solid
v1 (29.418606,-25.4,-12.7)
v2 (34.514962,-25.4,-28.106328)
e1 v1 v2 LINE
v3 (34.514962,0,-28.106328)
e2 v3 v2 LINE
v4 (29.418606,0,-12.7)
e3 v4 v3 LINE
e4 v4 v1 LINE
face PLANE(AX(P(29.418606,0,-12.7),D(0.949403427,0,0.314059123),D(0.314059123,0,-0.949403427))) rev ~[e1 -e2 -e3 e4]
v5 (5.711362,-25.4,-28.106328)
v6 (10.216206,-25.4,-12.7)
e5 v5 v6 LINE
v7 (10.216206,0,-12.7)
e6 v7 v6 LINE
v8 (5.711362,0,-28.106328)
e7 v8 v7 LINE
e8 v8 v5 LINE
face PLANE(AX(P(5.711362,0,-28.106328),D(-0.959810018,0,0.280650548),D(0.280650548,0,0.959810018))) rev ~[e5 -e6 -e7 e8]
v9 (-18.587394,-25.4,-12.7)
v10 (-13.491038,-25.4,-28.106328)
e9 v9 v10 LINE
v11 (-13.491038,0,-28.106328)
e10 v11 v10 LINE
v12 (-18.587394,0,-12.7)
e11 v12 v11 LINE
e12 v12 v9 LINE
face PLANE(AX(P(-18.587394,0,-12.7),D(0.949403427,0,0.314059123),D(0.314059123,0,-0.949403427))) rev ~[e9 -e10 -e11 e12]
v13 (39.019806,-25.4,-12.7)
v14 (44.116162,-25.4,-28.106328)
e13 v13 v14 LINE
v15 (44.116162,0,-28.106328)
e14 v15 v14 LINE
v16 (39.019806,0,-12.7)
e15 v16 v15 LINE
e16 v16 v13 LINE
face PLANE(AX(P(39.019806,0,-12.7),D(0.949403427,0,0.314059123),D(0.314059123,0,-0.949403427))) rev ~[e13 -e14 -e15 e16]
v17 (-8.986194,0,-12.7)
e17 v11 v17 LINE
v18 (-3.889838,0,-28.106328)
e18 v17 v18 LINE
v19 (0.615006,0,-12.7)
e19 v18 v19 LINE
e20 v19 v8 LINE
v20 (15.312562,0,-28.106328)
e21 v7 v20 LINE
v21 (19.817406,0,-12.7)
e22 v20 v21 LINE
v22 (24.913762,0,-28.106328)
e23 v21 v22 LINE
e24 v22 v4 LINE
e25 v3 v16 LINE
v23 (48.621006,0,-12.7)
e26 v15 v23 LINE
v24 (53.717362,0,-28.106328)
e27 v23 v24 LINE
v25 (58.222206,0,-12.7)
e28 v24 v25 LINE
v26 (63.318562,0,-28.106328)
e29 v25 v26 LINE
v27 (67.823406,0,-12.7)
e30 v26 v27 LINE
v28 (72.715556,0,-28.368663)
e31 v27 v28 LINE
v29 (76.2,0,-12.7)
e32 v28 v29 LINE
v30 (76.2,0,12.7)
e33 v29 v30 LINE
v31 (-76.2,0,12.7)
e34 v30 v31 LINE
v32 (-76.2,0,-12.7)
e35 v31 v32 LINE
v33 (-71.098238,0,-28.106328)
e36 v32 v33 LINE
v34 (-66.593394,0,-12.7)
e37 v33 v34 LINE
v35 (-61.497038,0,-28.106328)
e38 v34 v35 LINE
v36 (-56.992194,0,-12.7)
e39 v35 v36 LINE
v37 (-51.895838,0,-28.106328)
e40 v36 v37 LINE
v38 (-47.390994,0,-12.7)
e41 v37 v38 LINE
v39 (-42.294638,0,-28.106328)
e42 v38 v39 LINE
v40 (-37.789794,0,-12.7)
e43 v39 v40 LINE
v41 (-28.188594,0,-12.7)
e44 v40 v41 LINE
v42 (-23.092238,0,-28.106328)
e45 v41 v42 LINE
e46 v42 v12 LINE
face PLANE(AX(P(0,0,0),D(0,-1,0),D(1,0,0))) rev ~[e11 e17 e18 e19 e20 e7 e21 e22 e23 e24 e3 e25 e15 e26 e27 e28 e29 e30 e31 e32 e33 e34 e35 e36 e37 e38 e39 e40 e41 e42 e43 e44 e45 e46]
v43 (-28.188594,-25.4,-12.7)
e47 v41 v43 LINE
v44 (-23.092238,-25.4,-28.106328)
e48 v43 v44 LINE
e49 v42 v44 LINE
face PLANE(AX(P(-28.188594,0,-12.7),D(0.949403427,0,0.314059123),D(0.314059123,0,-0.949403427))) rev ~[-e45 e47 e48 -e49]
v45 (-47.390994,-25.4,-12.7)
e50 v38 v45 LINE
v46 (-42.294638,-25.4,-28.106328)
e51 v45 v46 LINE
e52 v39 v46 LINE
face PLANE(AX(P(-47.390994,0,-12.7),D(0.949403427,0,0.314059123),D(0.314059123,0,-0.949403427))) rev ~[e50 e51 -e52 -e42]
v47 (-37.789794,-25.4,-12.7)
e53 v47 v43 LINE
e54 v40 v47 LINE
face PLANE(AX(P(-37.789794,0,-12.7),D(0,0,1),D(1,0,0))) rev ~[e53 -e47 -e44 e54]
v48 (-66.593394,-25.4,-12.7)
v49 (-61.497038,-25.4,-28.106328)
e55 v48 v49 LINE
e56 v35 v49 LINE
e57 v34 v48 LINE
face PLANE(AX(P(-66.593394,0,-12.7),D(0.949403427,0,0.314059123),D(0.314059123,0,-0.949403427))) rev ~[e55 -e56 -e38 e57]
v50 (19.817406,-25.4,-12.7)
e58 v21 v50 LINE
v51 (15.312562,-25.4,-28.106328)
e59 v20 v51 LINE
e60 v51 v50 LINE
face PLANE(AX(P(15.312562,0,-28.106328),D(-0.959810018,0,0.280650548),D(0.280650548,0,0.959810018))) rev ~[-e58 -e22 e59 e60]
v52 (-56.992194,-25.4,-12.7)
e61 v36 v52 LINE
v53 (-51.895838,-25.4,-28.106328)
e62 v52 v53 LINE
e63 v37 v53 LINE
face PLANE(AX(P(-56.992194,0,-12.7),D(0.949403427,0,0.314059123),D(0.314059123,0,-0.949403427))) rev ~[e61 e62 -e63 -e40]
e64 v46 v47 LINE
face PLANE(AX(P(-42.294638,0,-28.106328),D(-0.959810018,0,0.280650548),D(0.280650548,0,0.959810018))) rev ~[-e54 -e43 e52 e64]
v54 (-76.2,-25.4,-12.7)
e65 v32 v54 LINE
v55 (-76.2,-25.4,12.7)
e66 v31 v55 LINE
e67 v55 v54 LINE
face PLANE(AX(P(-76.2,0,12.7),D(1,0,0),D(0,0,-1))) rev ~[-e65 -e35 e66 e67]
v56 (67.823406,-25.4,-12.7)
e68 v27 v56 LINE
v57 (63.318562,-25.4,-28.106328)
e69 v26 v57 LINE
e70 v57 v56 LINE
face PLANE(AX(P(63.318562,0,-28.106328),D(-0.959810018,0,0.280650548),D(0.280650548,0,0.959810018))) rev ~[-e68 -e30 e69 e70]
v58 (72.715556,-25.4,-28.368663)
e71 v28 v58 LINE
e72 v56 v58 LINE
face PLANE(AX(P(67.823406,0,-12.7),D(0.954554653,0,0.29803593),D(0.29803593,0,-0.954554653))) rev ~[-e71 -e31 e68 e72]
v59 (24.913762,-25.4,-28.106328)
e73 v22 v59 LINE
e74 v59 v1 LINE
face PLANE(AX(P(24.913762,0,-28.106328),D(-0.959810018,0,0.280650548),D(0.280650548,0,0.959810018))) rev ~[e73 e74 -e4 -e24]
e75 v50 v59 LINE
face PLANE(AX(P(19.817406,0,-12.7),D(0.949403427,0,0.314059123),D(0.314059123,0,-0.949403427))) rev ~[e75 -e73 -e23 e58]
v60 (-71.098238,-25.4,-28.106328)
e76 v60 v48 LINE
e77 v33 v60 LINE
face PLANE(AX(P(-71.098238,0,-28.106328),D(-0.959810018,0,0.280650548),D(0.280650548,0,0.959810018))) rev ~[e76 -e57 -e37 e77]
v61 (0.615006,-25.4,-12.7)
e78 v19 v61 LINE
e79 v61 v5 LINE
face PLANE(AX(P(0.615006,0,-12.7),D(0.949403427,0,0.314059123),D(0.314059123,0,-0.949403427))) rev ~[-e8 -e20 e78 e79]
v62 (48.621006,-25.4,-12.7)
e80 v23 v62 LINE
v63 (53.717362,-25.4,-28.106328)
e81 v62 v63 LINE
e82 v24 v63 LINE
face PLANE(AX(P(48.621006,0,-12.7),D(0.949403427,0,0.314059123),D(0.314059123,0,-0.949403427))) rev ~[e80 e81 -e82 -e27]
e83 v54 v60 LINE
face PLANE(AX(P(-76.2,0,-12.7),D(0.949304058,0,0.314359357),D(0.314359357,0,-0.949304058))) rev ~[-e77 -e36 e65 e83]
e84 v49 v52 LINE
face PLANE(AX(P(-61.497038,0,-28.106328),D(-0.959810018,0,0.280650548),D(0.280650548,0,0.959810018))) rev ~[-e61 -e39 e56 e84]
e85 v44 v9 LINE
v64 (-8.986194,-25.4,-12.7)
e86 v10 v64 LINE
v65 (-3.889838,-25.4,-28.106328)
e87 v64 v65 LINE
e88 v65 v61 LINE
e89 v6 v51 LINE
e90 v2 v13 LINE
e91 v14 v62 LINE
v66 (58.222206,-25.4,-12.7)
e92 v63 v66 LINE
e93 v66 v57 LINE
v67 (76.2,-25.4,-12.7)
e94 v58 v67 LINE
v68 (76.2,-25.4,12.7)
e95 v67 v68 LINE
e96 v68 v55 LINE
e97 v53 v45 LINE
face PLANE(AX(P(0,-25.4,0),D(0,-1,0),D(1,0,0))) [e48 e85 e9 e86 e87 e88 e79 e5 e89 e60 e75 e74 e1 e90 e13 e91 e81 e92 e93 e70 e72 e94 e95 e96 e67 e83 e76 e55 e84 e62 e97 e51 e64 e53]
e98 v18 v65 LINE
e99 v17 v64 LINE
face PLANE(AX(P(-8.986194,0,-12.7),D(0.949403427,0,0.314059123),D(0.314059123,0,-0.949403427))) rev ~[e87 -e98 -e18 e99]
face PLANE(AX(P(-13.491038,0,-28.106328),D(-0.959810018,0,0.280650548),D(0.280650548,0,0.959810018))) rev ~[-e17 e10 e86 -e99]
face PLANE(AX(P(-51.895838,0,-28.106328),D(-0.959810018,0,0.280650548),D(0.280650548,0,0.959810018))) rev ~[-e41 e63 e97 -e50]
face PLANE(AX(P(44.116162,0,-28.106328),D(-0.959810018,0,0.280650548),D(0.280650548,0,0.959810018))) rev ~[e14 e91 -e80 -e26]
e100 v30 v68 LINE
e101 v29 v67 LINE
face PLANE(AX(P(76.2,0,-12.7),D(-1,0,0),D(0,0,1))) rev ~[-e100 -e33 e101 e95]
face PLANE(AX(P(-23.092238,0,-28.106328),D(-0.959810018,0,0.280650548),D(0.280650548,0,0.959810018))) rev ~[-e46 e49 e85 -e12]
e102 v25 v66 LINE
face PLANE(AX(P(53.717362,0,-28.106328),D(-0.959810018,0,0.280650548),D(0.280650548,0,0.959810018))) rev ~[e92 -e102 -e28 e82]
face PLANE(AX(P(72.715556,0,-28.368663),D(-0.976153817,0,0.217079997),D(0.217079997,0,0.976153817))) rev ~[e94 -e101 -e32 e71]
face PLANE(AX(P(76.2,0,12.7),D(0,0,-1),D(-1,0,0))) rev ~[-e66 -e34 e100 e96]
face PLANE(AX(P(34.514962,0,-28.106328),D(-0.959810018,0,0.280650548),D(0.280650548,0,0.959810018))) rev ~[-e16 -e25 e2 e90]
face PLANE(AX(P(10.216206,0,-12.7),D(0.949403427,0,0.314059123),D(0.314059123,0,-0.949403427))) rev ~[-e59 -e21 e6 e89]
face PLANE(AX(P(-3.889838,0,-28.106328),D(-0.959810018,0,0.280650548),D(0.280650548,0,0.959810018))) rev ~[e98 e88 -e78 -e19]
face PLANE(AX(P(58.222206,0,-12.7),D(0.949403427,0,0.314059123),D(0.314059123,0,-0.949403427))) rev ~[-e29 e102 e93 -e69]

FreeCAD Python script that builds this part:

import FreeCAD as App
import Part
import Sketcher
from FreeCAD import Vector
Q = App.Units.Quantity

doc = App.newDocument("Part")
params = doc.addObject("Spreadsheet::Sheet", "Params")
for row, (alias, value) in enumerate([
    ("sketch1_width", "6 in"),
    ("sketch1_height", "1 in"),
    ("sketch1_width2", "0.378 in"),
    ("pad1_length", "1 in"),
], start=1):
    params.set(f"A{row}", alias)
    params.set(f"B{row}", "=" + value)
    params.setAlias(f"B{row}", alias)

body = doc.addObject("PartDesign::Body", "Body")

# Sketch on XZ plane
sketch1 = doc.addObject("Sketcher::SketchObject", "Sketch")
body.addObject(sketch1)
sketch1.AttachmentSupport = (doc.XZ_Plane, [""])
sketch1.MapMode = "FlatFace"
sketch1.addGeometry([
    Part.LineSegment(Vector(76, -13, 0), Vector(76, 13, 0)),  # 0
    Part.LineSegment(Vector(76, 13, 0), Vector(-76, 13, 0)),  # 1
    Part.LineSegment(Vector(-76, 13, 0), Vector(-76, -13, 0)),  # 2
    Part.LineSegment(Vector(-76, -13, 0), Vector(-71, -28, 0)),  # 3
    Part.LineSegment(Vector(-71, -28, 0), Vector(-67, -13, 0)),  # 4
    Part.LineSegment(Vector(-67, -13, 0), Vector(-61, -28, 0)),  # 5
    Part.LineSegment(Vector(-61, -28, 0), Vector(-57, -13, 0)),  # 6
    Part.LineSegment(Vector(-57, -13, 0), Vector(-52, -28, 0)),  # 7
    Part.LineSegment(Vector(-52, -28, 0), Vector(-47, -13, 0)),  # 8
    Part.LineSegment(Vector(-47, -13, 0), Vector(-42, -28, 0)),  # 9
    Part.LineSegment(Vector(-42, -28, 0), Vector(-38, -13, 0)),  # 10
    Part.LineSegment(Vector(-38, -13, 0), Vector(-28, -13, 0)),  # 11
    Part.LineSegment(Vector(-28, -13, 0), Vector(-23, -28, 0)),  # 12
    Part.LineSegment(Vector(-23, -28, 0), Vector(-19, -13, 0)),  # 13
    Part.LineSegment(Vector(-19, -13, 0), Vector(-13, -28, 0)),  # 14
    Part.LineSegment(Vector(-13, -28, 0), Vector(-9, -13, 0)),  # 15
    Part.LineSegment(Vector(-9, -13, 0), Vector(-4, -28, 0)),  # 16
    Part.LineSegment(Vector(-4, -28, 0), Vector(1, -13, 0)),  # 17
    Part.LineSegment(Vector(1, -13, 0), Vector(6, -28, 0)),  # 18
    Part.LineSegment(Vector(6, -28, 0), Vector(10, -13, 0)),  # 19
    Part.LineSegment(Vector(10, -13, 0), Vector(15, -28, 0)),  # 20
    Part.LineSegment(Vector(15, -28, 0), Vector(20, -13, 0)),  # 21
    Part.LineSegment(Vector(20, -13, 0), Vector(25, -28, 0)),  # 22
    Part.LineSegment(Vector(25, -28, 0), Vector(29, -13, 0)),  # 23
    Part.LineSegment(Vector(29, -13, 0), Vector(35, -28, 0)),  # 24
    Part.LineSegment(Vector(35, -28, 0), Vector(39, -13, 0)),  # 25
    Part.LineSegment(Vector(39, -13, 0), Vector(44, -28, 0)),  # 26
    Part.LineSegment(Vector(44, -28, 0), Vector(49, -13, 0)),  # 27
    Part.LineSegment(Vector(49, -13, 0), Vector(54, -28, 0)),  # 28
    Part.LineSegment(Vector(54, -28, 0), Vector(58, -13, 0)),  # 29
    Part.LineSegment(Vector(58, -13, 0), Vector(63, -28, 0)),  # 30
    Part.LineSegment(Vector(63, -28, 0), Vector(68, -13, 0)),  # 31
    Part.LineSegment(Vector(68, -13, 0), Vector(73, -28, 0)),  # 32
    Part.LineSegment(Vector(73, -28, 0), Vector(76, -13, 0)),  # 33
], False)
sketch1.addConstraint([
    Sketcher.Constraint("Coincident", 0, 2, 1, 1),
    Sketcher.Constraint("Coincident", 1, 2, 2, 1),
    Sketcher.Constraint("Coincident", 2, 2, 3, 1),
    Sketcher.Constraint("Coincident", 3, 2, 4, 1),
    Sketcher.Constraint("Coincident", 4, 2, 5, 1),
    Sketcher.Constraint("Coincident", 5, 2, 6, 1),
    Sketcher.Constraint("Coincident", 6, 2, 7, 1),
    Sketcher.Constraint("Coincident", 7, 2, 8, 1),
    Sketcher.Constraint("Coincident", 8, 2, 9, 1),
    Sketcher.Constraint("Coincident", 9, 2, 10, 1),
    Sketcher.Constraint("Coincident", 10, 2, 11, 1),
    Sketcher.Constraint("Coincident", 11, 2, 12, 1),
    Sketcher.Constraint("Coincident", 12, 2, 13, 1),
    Sketcher.Constraint("Coincident", 13, 2, 14, 1),
    Sketcher.Constraint("Coincident", 14, 2, 15, 1),
    Sketcher.Constraint("Coincident", 15, 2, 16, 1),
    Sketcher.Constraint("Coincident", 16, 2, 17, 1),
    Sketcher.Constraint("Coincident", 17, 2, 18, 1),
    Sketcher.Constraint("Coincident", 18, 2, 19, 1),
    Sketcher.Constraint("Coincident", 19, 2, 20, 1),
    Sketcher.Constraint("Coincident", 20, 2, 21, 1),
    Sketcher.Constraint("Coincident", 21, 2, 22, 1),
    Sketcher.Constraint("Coincident", 22, 2, 23, 1),
    Sketcher.Constraint("Coincident", 23, 2, 24, 1),
    Sketcher.Constraint("Coincident", 24, 2, 25, 1),
    Sketcher.Constraint("Coincident", 25, 2, 26, 1),
    Sketcher.Constraint("Coincident", 26, 2, 27, 1),
    Sketcher.Constraint("Coincident", 27, 2, 28, 1),
    Sketcher.Constraint("Coincident", 28, 2, 29, 1),
    Sketcher.Constraint("Coincident", 29, 2, 30, 1),
    Sketcher.Constraint("Coincident", 30, 2, 31, 1),
    Sketcher.Constraint("Coincident", 31, 2, 32, 1),
    Sketcher.Constraint("Coincident", 32, 2, 33, 1),
    Sketcher.Constraint("Coincident", 33, 2, 0, 1),
    Sketcher.Constraint("Vertical", 0),
    Sketcher.Constraint("Horizontal", 1),
    Sketcher.Constraint("Vertical", 2),
    Sketcher.Constraint("Horizontal", 11),
    Sketcher.Constraint("Symmetric", 0, 2, 2, 2, -1, 1),
    Sketcher.Constraint("Parallel", 4, 6),
    Sketcher.Constraint("Parallel", 5, 7),
    Sketcher.Constraint("Parallel", 6, 8),
    Sketcher.Constraint("Parallel", 7, 9),
    Sketcher.Constraint("Parallel", 8, 10),
    Sketcher.Constraint("Parallel", 9, 12),
    Sketcher.Constraint("Parallel", 10, 13),
    Sketcher.Constraint("Parallel", 12, 14),
    Sketcher.Constraint("Parallel", 13, 15),
    Sketcher.Constraint("Parallel", 14, 16),
    Sketcher.Constraint("Parallel", 15, 17),
    Sketcher.Constraint("Parallel", 16, 18),
    Sketcher.Constraint("Parallel", 17, 19),
    Sketcher.Constraint("Parallel", 18, 20),
    Sketcher.Constraint("Parallel", 19, 21),
    Sketcher.Constraint("Parallel", 20, 22),
    Sketcher.Constraint("Parallel", 21, 23),
    Sketcher.Constraint("Parallel", 22, 24),
    Sketcher.Constraint("Parallel", 23, 25),
    Sketcher.Constraint("Parallel", 24, 26),
    Sketcher.Constraint("Parallel", 25, 27),
    Sketcher.Constraint("Parallel", 26, 28),
    Sketcher.Constraint("Parallel", 27, 29),
    Sketcher.Constraint("Parallel", 28, 30),
    Sketcher.Constraint("Parallel", 29, 31),
    Sketcher.Constraint("Horizontal", 2, 2, 4, 2),
    Sketcher.Constraint("Horizontal", 3, 2, 5, 2),
    Sketcher.Constraint("Horizontal", 4, 2, 6, 2),
    Sketcher.Constraint("Horizontal", 5, 2, 7, 2),
    Sketcher.Constraint("Horizontal", 6, 2, 8, 2),
    Sketcher.Constraint("Horizontal", 7, 2, 9, 2),
    Sketcher.Constraint("Horizontal", 8, 2, 10, 2),
    Sketcher.Constraint("Horizontal", 9, 2, 12, 2),
    Sketcher.Constraint("Horizontal", 11, 2, 13, 2),
    Sketcher.Constraint("Horizontal", 12, 2, 14, 2),
    Sketcher.Constraint("Horizontal", 13, 2, 15, 2),
    Sketcher.Constraint("Horizontal", 14, 2, 16, 2),
    Sketcher.Constraint("Horizontal", 15, 2, 17, 2),
    Sketcher.Constraint("Horizontal", 16, 2, 18, 2),
    Sketcher.Constraint("Horizontal", 17, 2, 19, 2),
    Sketcher.Constraint("Horizontal", 18, 2, 20, 2),
    Sketcher.Constraint("Horizontal", 19, 2, 21, 2),
    Sketcher.Constraint("Horizontal", 20, 2, 22, 2),
    Sketcher.Constraint("Horizontal", 21, 2, 23, 2),
    Sketcher.Constraint("Horizontal", 22, 2, 24, 2),
    Sketcher.Constraint("Horizontal", 23, 2, 25, 2),
    Sketcher.Constraint("Horizontal", 24, 2, 26, 2),
    Sketcher.Constraint("Horizontal", 25, 2, 27, 2),
    Sketcher.Constraint("Horizontal", 26, 2, 28, 2),
    Sketcher.Constraint("Horizontal", 27, 2, 29, 2),
    Sketcher.Constraint("Horizontal", 28, 2, 30, 2),
    Sketcher.Constraint("Horizontal", 29, 2, 31, 2),
    Sketcher.Constraint("Horizontal", 31, 2, 33, 2),
    Sketcher.Constraint("DistanceX", 1, 2, 1, 1, Q("6 in")),
    Sketcher.Constraint("DistanceY", 0, 1, 0, 2, Q("1 in")),
    Sketcher.Constraint("DistanceX", 11, 1, 11, 2, Q("0.378 in")),
    Sketcher.Constraint("DistanceX", 3, 2, 5, 2, Q("0.378 in")),
    Sketcher.Constraint("Distance", 32, 16.414632),
    Sketcher.Constraint("Distance", 33, 16.051428),
    Sketcher.Constraint("DistanceY", 3, 2, -1, 1, 28.106328),
    Sketcher.Constraint("DistanceX", 5, 2, -1, 1, 61.497038),
    Sketcher.Constraint("DistanceX", 31, 2, 32, 2, 4.89215),
])
sketch1.setExpression("Constraints[92]", "Params.sketch1_width")
sketch1.setExpression("Constraints[93]", "Params.sketch1_height")
sketch1.setExpression("Constraints[94]", "Params.sketch1_width2")
pad1 = doc.addObject("PartDesign::Pad", "Pad")
body.addObject(pad1)
pad1.Profile = sketch1
pad1.setExpression("Length", "Params.pad1_length")

doc.recompute()
